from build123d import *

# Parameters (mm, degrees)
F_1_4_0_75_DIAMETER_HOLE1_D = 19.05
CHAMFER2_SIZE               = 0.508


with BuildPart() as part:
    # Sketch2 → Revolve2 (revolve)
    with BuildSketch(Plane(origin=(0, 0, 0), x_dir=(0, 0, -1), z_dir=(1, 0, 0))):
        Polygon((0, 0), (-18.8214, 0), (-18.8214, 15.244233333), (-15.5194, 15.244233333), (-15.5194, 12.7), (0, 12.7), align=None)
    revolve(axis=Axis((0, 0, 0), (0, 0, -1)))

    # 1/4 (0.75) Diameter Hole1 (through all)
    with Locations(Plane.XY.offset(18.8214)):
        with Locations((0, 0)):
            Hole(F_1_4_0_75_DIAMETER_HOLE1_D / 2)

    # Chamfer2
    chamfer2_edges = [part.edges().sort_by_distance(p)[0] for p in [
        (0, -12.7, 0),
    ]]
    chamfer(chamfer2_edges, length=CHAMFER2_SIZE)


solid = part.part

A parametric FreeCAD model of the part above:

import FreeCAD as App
import Part
import Sketcher
from FreeCAD import Vector
Q = App.Units.Quantity


def edges_at(feature, points):
    """Names of the edges that pass closest to the given points."""
    edges = feature.Shape.Edges
    near = lambda p: min(range(len(edges)), key=lambda i: edges[i].distToShape(Part.Vertex(*p))[0])
    return sorted({f"Edge{near(p) + 1}" for p in points})

doc = App.newDocument("Part")
body = doc.addObject("PartDesign::Body", "Body")

# Sketch on YZ plane
sketch1 = doc.addObject("Sketcher::SketchObject", "Sketch")
body.addObject(sketch1)
sketch1.AttachmentSupport = (doc.YZ_Plane, [""])
sketch1.MapMode = "FlatFace"
sketch1.addGeometry([
    Part.LineSegment(Vector(0, 18.8, 0), Vector(0, 0, 0)),  # 0
    Part.LineSegment(Vector(0, 0, 0), Vector(12.7, 0, 0)),  # 1
    Part.LineSegment(Vector(12.7, 0, 0), Vector(12.7, 15.5, 0)),  # 2
    Part.LineSegment(Vector(12.7, 15.5, 0), Vector(15.2, 15.5, 0)),  # 3
    Part.LineSegment(Vector(15.2, 15.5, 0), Vector(15.2, 18.8, 0)),  # 4
    Part.LineSegment(Vector(15.2, 18.8, 0), Vector(0, 18.8, 0)),  # 5
], False)
sketch1.addConstraint([
    Sketcher.Constraint("Coincident", 0, 2, 1, 1),
    Sketcher.Constraint("Coincident", 1, 2, 2, 1),
    Sketcher.Constraint("Coincident", 2, 2, 3, 1),
    Sketcher.Constraint("Coincident", 3, 2, 4, 1),
    Sketcher.Constraint("Coincident", 4, 2, 5, 1),
    Sketcher.Constraint("Coincident", 5, 2, 0, 1),
    Sketcher.Constraint("Vertical", 0),
    Sketcher.Constraint("Horizontal", 1),
    Sketcher.Constraint("Vertical", 2),
    Sketcher.Constraint("Horizontal", 3),
    Sketcher.Constraint("Vertical", 4),
    Sketcher.Constraint("Horizontal", 5),
    Sketcher.Constraint("Coincident", 0, 2, -1, 1),
    Sketcher.Constraint("DistanceX", 1, 1, 1, 2, Q("0.5 in")),
    Sketcher.Constraint("DistanceY", 4, 1, 4, 2, Q("0.13 in")),
    Sketcher.Constraint("DistanceY", 0, 2, 0, 1, Q("0.741 in")),
    Sketcher.Constraint("DistanceX", 3, 1, 3, 2, Q("2.544233 mm")),
])
revolution = doc.addObject("PartDesign::Revolution", "Revolution")
body.addObject(revolution)
revolution.Profile = sketch1
revolution.ReferenceAxis = (sketch1, ["V_Axis"])
revolution.Angle = 360

# Sketch on XY plane
sketch2 = doc.addObject("Sketcher::SketchObject", "Sketch001")
body.addObject(sketch2)
sketch2.AttachmentSupport = (doc.XY_Plane, [""])
sketch2.MapMode = "FlatFace"
sketch2.AttachmentOffset = App.Placement(Vector(0, 0, 0.741 * 25.4), App.Rotation())
sketch2.addGeometry(Part.Circle(Vector(0, 0, 0), Vector(0, 0, 1), 10), False)
sketch2.addConstraint([
    Sketcher.Constraint("Coincident", 0, 3, -1, 1),
    Sketcher.Constraint("Diameter", 0, Q("0.75 in")),
])
doc.recompute()
hole = doc.addObject("PartDesign::Hole", "Hole")
body.addObject(hole)
hole.Profile = sketch2
hole.ThreadType = "None"
hole.Diameter = Q("0.75 in")
hole.DepthType = "ThroughAll"
doc.recompute()

chamfer = doc.addObject("PartDesign::Chamfer", "Chamfer")
body.addObject(chamfer)
chamfer.Base = (hole, edges_at(hole, [(0, -12.7, 0)]))
chamfer.Size = Q("0.02 in")

doc.recompute()
